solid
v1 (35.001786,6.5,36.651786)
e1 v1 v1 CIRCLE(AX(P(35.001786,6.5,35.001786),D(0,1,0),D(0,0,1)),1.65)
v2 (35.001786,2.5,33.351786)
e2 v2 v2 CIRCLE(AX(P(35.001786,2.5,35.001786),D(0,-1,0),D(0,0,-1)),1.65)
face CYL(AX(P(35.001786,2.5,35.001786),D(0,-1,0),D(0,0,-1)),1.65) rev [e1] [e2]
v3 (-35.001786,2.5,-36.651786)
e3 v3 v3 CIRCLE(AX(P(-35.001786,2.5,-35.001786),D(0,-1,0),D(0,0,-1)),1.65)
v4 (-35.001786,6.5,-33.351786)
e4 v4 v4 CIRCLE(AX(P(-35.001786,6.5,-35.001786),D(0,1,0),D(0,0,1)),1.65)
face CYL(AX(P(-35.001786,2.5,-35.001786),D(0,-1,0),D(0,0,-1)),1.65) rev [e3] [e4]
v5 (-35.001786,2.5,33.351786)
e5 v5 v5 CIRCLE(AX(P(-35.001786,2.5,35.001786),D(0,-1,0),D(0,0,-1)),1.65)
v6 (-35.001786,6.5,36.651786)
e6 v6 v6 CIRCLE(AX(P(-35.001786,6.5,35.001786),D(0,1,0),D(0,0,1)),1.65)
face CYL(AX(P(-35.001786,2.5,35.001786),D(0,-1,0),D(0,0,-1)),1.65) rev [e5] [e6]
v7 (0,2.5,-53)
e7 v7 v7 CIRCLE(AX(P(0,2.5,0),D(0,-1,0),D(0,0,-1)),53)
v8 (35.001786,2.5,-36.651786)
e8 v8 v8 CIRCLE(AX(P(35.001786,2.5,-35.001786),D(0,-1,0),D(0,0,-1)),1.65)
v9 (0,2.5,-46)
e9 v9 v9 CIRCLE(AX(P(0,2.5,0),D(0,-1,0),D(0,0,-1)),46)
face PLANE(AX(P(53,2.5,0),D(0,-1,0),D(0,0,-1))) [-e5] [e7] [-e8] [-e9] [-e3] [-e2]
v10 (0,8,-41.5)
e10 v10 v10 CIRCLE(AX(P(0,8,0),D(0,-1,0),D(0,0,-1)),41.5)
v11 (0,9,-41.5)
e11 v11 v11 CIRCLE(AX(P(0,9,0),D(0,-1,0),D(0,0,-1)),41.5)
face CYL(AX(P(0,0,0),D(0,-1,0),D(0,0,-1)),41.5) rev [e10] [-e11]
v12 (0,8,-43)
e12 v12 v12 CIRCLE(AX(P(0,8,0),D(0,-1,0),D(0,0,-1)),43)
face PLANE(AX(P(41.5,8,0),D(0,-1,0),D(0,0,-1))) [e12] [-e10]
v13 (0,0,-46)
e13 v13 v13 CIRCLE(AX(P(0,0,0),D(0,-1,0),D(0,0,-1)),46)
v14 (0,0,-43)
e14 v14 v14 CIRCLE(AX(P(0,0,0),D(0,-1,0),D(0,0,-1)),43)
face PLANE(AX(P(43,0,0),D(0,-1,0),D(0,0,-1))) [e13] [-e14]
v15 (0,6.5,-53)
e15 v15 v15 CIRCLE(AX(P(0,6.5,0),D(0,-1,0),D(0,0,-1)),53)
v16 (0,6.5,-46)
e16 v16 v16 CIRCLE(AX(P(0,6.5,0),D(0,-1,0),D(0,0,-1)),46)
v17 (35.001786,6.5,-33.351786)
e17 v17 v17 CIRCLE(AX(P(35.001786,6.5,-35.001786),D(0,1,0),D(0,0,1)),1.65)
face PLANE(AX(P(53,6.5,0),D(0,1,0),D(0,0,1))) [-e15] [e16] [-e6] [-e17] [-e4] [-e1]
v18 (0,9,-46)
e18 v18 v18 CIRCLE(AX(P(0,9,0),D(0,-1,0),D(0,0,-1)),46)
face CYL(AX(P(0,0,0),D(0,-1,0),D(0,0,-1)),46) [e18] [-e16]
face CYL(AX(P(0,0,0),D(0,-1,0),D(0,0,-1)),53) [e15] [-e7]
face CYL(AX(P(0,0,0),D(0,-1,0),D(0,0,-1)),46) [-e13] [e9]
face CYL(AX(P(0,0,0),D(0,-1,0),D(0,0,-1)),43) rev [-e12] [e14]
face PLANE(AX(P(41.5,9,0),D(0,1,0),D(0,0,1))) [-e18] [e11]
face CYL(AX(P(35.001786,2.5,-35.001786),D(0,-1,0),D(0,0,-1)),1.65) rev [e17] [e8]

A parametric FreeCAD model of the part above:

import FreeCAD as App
import Part
import Sketcher

V = App.Vector

doc = App.newDocument("Part")
body = doc.addObject("PartDesign::Body", "Body")

# Sketch on XY plane
sketch1 = body.newObject("Sketcher::SketchObject", "Sketch")
sketch1.AttachmentSupport = (doc.getObject("XY_Plane"), [""])
sketch1.MapMode = "FlatFace"
sketch1.addGeometry(Part.LineSegment(V(46, 9, 0), V(41.5, 9, 0)), False)
sketch1.addGeometry(Part.LineSegment(V(41.5, 9, 0), V(41.5, 8, 0)), False)
sketch1.addGeometry(Part.LineSegment(V(41.5, 8, 0), V(43, 8, 0)), False)
sketch1.addGeometry(Part.LineSegment(V(43, 8, 0), V(43, 0, 0)), False)
sketch1.addGeometry(Part.LineSegment(V(43, 0, 0), V(46, 0, 0)), False)
sketch1.addGeometry(Part.LineSegment(V(46, 0, 0), V(46, 2.5, 0)), False)
sketch1.addGeometry(Part.LineSegment(V(46, 2.5, 0), V(53, 2.5, 0)), False)
sketch1.addGeometry(Part.LineSegment(V(53, 2.5, 0), V(53, 6.5, 0)), False)
sketch1.addGeometry(Part.LineSegment(V(53, 6.5, 0), V(46, 6.5, 0)), False)
sketch1.addGeometry(Part.LineSegment(V(46, 6.5, 0), V(46, 9, 0)), False)
sketch1.addConstraint(Sketcher.Constraint("Coincident", 0, 2, 1, 1))
sketch1.addConstraint(Sketcher.Constraint("Coincident", 1, 2, 2, 1))
sketch1.addConstraint(Sketcher.Constraint("Coincident", 2, 2, 3, 1))
sketch1.addConstraint(Sketcher.Constraint("Coincident", 3, 2, 4, 1))
sketch1.addConstraint(Sketcher.Constraint("Coincident", 4, 2, 5, 1))
sketch1.addConstraint(Sketcher.Constraint("Coincident", 5, 2, 6, 1))
sketch1.addConstraint(Sketcher.Constraint("Coincident", 6, 2, 7, 1))
sketch1.addConstraint(Sketcher.Constraint("Coincident", 7, 2, 8, 1))
sketch1.addConstraint(Sketcher.Constraint("Coincident", 8, 2, 9, 1))
sketch1.addConstraint(Sketcher.Constraint("Coincident", 9, 2, 0, 1))
sketch1.addConstraint(Sketcher.Constraint("Horizontal", 0))
sketch1.addConstraint(Sketcher.Constraint("Vertical", 1))
sketch1.addConstraint(Sketcher.Constraint("Horizontal", 2))
sketch1.addConstraint(Sketcher.Constraint("Vertical", 3))
sketch1.addConstraint(Sketcher.Constraint("Horizontal", 4))
sketch1.addConstraint(Sketcher.Constraint("Vertical", 5))
sketch1.addConstraint(Sketcher.Constraint("Horizontal", 6))
sketch1.addConstraint(Sketcher.Constraint("Vertical", 7))
sketch1.addConstraint(Sketcher.Constraint("Horizontal", 8))
sketch1.addConstraint(Sketcher.Constraint("Vertical", 9))
sketch1.addConstraint(Sketcher.Constraint("PointOnObject", 3, 2, -1))
sketch1.addConstraint(Sketcher.Constraint("Vertical", 5, 2, 8, 2))
sketch1.addConstraint(Sketcher.Constraint("Equal", 5, 9))
sketch1.addConstraint(Sketcher.Constraint("DistanceX", 4, 1, 4, 2, 3.0))
sketch1.addConstraint(Sketcher.Constraint("DistanceX", 6, 1, 6, 2, 7.0))
sketch1.addConstraint(Sketcher.Constraint("DistanceY", 1, 2, 1, 1, 1.0))
sketch1.addConstraint(Sketcher.Constraint("DistanceY", 3, 2, 3, 1, 8.0))
sketch1.addConstraint(Sketcher.Constraint("DistanceY", 7, 1, 7, 2, 4.0))
sketch1.addConstraint(Sketcher.Constraint("DistanceX", 0, 2, 0, 1, 4.5))
sketch1.addConstraint(Sketcher.Constraint("DistanceX", -1, 1, 2, 2, 43.0))
revolution = body.newObject("PartDesign::Revolution", "Revolution")
revolution.Profile = sketch1
revolution.ReferenceAxis = (sketch1, ["V_Axis"])
revolution.Angle = 360

# Sketch on XZ plane
sketch2 = body.newObject("Sketcher::SketchObject", "Sketch001")
sketch2.AttachmentSupport = (doc.getObject("XZ_Plane"), [""])
sketch2.MapMode = "FlatFace"
sketch2.AttachmentOffset = App.Placement(V(0, 0, -2.5), App.Rotation())
sketch2.addGeometry(Part.Circle(V(35.001786, -35.001786, 0), V(0, 0, 1), 1.65), False)
sketch2.addGeometry(Part.Circle(V(-35.001786, -35.001786, 0), V(0, 0, 1), 1.65), False)
sketch2.addGeometry(Part.Circle(V(-35.001786, 35.001786, 0), V(0, 0, 1), 1.65), False)
sketch2.addGeometry(Part.Circle(V(35.001786, 35.001786, 0), V(0, 0, 1), 1.65), False)
sketch2.addConstraint(Sketcher.Constraint("Equal", 0, 1))
sketch2.addConstraint(Sketcher.Constraint("Equal", 1, 2))
sketch2.addConstraint(Sketcher.Constraint("Equal", 2, 3))
sketch2.addConstraint(Sketcher.Constraint("Symmetric", 0, 3, 2, 3, -1, 1))
sketch2.addConstraint(Sketcher.Constraint("Symmetric", 1, 3, 3, 3, -1, 1))
sketch2.addConstraint(Sketcher.Constraint("Symmetric", 0, 3, 1, 3, -2))
sketch2.addConstraint(Sketcher.Constraint("Diameter", 0, 3.3))
sketch2.addConstraint(Sketcher.Constraint("DistanceX", 1, 3, 0, 3, 70.003571))
sketch2.addConstraint(Sketcher.Constraint("DistanceY", 1, 3, 2, 3, 70.003571))
doc.recompute()
hole = body.newObject("PartDesign::Hole", "Hole")
hole.Profile = sketch2
hole.ThreadType = "None"
hole.Diameter = 3.3
hole.DepthType = "ThroughAll"

doc.recompute()
